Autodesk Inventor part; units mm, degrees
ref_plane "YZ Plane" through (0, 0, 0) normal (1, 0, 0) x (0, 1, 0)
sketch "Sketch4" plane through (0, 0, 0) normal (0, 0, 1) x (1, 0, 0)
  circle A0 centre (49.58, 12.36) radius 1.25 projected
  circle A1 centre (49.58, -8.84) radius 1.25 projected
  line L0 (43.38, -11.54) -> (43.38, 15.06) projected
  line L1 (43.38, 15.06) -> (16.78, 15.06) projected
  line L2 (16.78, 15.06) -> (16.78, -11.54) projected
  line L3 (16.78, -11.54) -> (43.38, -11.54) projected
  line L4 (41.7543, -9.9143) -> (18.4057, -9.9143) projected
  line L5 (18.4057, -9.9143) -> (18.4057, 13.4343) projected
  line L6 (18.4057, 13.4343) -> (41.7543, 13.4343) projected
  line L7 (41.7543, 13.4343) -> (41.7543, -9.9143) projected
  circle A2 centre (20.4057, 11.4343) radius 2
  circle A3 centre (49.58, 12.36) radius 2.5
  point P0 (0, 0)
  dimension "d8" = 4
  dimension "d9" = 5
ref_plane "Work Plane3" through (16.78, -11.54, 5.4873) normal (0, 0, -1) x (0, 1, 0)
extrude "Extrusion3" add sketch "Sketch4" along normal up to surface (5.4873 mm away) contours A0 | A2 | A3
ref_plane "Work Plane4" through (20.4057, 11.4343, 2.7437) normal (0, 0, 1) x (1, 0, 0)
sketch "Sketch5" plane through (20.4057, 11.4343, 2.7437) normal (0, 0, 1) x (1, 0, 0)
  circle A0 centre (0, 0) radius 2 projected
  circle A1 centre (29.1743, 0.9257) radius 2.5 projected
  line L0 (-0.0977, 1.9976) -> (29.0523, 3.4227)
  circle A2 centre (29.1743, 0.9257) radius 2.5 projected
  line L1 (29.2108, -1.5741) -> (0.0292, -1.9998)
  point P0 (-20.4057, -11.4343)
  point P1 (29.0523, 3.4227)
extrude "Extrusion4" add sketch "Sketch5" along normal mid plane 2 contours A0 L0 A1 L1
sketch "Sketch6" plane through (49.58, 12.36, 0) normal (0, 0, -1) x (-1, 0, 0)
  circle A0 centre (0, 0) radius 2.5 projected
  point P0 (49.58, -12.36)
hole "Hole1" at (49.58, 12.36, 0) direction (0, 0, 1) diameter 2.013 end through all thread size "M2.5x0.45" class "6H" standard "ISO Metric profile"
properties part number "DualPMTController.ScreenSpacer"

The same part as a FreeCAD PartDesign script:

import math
import FreeCAD as App
import Part
import Sketcher

V = App.Vector
Q = App.Units.Quantity

doc = App.newDocument("Part")
params = doc.addObject("Spreadsheet::Sheet", "Params")
for row, (alias, value) in enumerate([
    ("sketch1_diameter", "5 mm"),
    ("sketch1_diameter2", "4 mm"),
    ("pad1_length", "5.4873 mm"),
    ("sketch2_radius", "2 mm"),
    ("sketch2_radius2", "2.5 mm"),
    ("pad2_length", "2 mm"),
    ("hole_diameter", "2.013 mm"),
], start=1):
    params.set(f"A{row}", alias)
    params.set(f"B{row}", "=" + value)
    params.setAlias(f"B{row}", alias)

body = doc.addObject("PartDesign::Body", "Body")
body.AllowCompound = True

# Sketch on XY plane
sketch1 = body.newObject("Sketcher::SketchObject", "Sketch")
sketch1.AttachmentSupport = (doc.getObject("XY_Plane"), [""])
sketch1.MapMode = "FlatFace"
sketch1.addGeometry([
    Part.Circle(V(49.6, 12.4, 0), V(0, 0, 1), 2.5),
    Part.Circle(V(20.4, 11.4, 0), V(0, 0, 1), 2),
], False)
sketch1.addConstraint([
    Sketcher.Constraint("Diameter", 0, 5.0),
    Sketcher.Constraint("Diameter", 1, 4.0),
    Sketcher.Constraint("DistanceX", -1, 1, 0, 3, 49.58),
    Sketcher.Constraint("DistanceY", -1, 1, 0, 3, 12.36),
    Sketcher.Constraint("DistanceX", -1, 1, 1, 3, 20.4057),
    Sketcher.Constraint("DistanceY", -1, 1, 1, 3, 11.4343),
])
sketch1.setExpression("Constraints[0]", "Params.sketch1_diameter")
sketch1.setExpression("Constraints[1]", "Params.sketch1_diameter2")
pad1 = body.newObject("PartDesign::Pad", "Pad")
pad1.Profile = sketch1
pad1.setExpression("Length", "Params.pad1_length")

# Sketch on XY plane
sketch2 = body.newObject("Sketcher::SketchObject", "Sketch001")
sketch2.AttachmentSupport = (doc.getObject("XY_Plane"), [""])
sketch2.MapMode = "FlatFace"
sketch2.AttachmentOffset = App.Placement(V(0, 0, 2.7437), App.Rotation())
sketch2.addGeometry([
    Part.ArcOfCircle(Part.Circle(V(20.4, 11.4, 0), V(0, 0, 1), 2), math.radians(-89), math.radians(93)),
    Part.LineSegment(V(20.4, 9.4, 0), V(49.6, 9.9, 0)),
    Part.ArcOfCircle(Part.Circle(V(49.6, 12.4, 0), V(0, 0, 1), 2.5), math.radians(93), math.radians(271)),
    Part.LineSegment(V(49.5, 14.9, 0), V(20.3, 13.4, 0)),
], False)
sketch2.addConstraint([
    Sketcher.Constraint("Tangent", 0, 1, 1, 1),
    Sketcher.Constraint("Tangent", 1, 2, 2, 2),
    Sketcher.Constraint("Tangent", 2, 1, 3, 1),
    Sketcher.Constraint("Tangent", 3, 2, 0, 2),
    Sketcher.Constraint("Radius", 0, 2.0),
    Sketcher.Constraint("Radius", 2, 2.5),
    Sketcher.Constraint("Angle", 3, Q("-177.2011 deg")),
    Sketcher.Constraint("DistanceX", -1, 1, 2, 3, 49.58),
    Sketcher.Constraint("DistanceY", -1, 1, 2, 3, 12.36),
    Sketcher.Constraint("DistanceX", 3, 2, 2, 1, 29.15),
])
sketch2.setExpression("Constraints[4]", "Params.sketch2_radius")
sketch2.setExpression("Constraints[5]", "Params.sketch2_radius2")
pad2 = body.newObject("PartDesign::Pad", "Pad001")
pad2.Profile = sketch2
pad2.setExpression("Length", "Params.pad2_length")
pad2.Midplane = True

# Sketch on XY plane
sketch3 = body.newObject("Sketcher::SketchObject", "Sketch002")
sketch3.AttachmentSupport = (doc.getObject("XY_Plane"), [""])
sketch3.MapMode = "FlatFace"
sketch3.addGeometry(Part.Circle(V(49.6, 12.4, 0), V(0, 0, 1), 1), False)
sketch3.addConstraint([
    Sketcher.Constraint("Diameter", 0, 2.013),
    Sketcher.Constraint("DistanceX", -1, 1, 0, 3, 49.58),
    Sketcher.Constraint("DistanceY", -1, 1, 0, 3, 12.36),
])
doc.recompute()
hole = body.newObject("PartDesign::Hole", "Hole")
hole.Profile = sketch3
hole.ThreadType = "None"
hole.setExpression("Diameter", "Params.hole_diameter")
hole.DepthType = "ThroughAll"
hole.Reversed = True

doc.recompute()
